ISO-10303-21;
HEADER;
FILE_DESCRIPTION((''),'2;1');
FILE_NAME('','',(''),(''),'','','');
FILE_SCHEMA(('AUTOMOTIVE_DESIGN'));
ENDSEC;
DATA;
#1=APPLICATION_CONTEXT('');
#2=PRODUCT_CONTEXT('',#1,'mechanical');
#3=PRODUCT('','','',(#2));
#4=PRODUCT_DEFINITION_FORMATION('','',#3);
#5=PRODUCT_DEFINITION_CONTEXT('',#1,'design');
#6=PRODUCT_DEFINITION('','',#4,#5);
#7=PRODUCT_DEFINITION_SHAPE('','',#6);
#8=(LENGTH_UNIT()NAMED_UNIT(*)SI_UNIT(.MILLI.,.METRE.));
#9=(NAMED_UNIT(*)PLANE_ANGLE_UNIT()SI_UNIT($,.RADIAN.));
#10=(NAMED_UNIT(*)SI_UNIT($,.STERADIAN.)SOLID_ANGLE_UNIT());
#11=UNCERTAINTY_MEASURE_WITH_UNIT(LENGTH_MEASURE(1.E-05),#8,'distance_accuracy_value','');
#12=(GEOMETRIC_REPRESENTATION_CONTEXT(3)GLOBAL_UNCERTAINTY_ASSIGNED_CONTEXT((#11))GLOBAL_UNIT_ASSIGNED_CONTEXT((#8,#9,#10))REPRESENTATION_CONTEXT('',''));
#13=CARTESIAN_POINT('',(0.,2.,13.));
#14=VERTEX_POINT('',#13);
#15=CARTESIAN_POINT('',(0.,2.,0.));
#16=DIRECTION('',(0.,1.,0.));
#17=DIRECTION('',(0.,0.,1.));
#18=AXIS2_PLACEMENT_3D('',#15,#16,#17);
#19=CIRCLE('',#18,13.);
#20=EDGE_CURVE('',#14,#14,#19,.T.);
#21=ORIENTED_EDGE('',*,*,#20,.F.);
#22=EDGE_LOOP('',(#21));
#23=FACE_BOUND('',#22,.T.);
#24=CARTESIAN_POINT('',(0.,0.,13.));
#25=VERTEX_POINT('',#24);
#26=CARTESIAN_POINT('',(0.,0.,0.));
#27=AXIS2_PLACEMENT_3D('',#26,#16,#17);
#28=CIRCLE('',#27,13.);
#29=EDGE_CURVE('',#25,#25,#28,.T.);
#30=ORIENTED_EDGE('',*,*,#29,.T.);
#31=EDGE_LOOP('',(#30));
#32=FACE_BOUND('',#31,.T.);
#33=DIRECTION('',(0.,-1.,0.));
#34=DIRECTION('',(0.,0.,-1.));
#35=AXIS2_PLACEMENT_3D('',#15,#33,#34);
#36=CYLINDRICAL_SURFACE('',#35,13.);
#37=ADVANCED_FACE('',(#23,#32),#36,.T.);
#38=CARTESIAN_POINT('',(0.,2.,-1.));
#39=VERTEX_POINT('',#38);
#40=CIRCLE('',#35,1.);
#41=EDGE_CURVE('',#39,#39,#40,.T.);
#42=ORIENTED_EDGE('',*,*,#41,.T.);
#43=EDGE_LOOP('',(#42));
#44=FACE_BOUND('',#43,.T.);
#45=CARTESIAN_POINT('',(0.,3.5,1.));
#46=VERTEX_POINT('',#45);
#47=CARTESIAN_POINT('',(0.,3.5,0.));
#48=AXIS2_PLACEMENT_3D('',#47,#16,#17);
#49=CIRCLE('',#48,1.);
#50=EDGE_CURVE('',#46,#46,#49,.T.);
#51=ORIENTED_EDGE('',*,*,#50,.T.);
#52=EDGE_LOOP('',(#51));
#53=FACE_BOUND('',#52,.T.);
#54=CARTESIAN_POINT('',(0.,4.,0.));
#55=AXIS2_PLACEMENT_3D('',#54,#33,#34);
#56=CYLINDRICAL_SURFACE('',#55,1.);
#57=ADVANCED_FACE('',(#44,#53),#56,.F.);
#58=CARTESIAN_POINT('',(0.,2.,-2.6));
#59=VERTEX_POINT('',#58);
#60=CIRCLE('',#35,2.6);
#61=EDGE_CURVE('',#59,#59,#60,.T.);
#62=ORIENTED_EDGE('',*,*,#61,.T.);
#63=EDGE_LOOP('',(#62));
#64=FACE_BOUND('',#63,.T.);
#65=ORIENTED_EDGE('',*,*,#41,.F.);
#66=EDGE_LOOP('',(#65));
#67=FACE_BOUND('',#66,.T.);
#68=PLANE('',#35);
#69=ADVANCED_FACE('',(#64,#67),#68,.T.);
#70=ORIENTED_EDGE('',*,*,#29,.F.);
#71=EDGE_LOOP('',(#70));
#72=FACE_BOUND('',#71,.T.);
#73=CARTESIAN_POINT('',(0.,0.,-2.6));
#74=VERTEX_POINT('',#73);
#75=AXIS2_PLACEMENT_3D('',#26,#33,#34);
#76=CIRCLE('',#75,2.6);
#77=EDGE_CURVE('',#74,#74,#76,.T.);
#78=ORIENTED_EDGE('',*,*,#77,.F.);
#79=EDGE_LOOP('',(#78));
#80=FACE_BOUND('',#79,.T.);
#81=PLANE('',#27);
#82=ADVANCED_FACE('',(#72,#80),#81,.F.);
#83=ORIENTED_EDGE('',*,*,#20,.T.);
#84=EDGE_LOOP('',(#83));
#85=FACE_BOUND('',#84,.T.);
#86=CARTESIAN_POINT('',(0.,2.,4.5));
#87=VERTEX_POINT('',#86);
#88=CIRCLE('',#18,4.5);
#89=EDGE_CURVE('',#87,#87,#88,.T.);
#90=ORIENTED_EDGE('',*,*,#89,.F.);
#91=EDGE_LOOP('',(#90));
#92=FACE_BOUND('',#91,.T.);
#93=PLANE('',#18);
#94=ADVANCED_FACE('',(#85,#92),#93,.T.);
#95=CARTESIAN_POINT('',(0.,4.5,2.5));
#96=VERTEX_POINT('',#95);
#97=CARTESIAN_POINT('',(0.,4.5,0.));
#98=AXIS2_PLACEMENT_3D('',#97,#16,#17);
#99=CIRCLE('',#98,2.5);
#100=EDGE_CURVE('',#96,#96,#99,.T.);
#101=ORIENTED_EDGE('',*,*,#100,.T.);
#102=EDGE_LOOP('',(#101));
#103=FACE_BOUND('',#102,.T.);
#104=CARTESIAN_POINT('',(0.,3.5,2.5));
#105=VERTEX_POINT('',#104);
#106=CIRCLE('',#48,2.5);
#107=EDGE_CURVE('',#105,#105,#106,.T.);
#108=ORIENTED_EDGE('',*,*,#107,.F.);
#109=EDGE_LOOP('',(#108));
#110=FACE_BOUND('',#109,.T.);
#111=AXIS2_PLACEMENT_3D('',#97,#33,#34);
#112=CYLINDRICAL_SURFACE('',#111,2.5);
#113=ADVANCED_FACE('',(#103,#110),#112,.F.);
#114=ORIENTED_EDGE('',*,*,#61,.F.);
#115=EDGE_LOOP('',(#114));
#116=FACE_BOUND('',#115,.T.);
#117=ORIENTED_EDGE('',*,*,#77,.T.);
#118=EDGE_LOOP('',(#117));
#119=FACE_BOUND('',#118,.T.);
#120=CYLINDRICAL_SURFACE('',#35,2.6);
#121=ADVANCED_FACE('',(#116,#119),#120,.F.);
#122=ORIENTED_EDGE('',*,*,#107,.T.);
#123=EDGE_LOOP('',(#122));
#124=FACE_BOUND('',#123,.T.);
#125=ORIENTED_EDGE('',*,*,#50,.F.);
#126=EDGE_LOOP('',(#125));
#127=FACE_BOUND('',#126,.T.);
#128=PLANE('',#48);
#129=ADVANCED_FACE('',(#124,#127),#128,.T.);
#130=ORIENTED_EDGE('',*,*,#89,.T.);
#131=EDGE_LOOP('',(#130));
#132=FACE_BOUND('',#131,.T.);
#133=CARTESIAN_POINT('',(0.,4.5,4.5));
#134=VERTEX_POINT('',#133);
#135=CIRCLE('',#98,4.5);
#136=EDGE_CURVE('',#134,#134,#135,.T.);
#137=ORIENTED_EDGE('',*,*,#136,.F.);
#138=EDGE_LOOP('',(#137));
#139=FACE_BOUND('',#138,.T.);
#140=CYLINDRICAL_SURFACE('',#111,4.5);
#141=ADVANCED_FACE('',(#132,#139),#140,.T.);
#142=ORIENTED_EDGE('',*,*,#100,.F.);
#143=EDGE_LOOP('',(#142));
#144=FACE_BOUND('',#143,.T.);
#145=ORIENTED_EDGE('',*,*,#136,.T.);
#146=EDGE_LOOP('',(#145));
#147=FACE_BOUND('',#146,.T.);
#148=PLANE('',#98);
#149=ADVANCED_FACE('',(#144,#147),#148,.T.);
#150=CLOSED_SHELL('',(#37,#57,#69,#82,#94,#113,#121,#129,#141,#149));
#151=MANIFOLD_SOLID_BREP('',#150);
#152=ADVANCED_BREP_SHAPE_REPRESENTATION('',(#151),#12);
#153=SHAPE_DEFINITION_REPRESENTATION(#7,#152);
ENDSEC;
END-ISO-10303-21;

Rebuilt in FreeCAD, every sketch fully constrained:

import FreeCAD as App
import Part
import Sketcher

V = App.Vector

doc = App.newDocument("Part")
body = doc.addObject("PartDesign::Body", "Body")

sketch1 = body.newObject("Sketcher::SketchObject", "Sketch")
sketch1.AttachmentSupport = (doc.getObject("XZ_Plane"), [""])
sketch1.MapMode = "FlatFace"
sketch1.addGeometry(Part.Circle(V(0, 0, 0), V(0, 0, 1), 13), False)
sketch1.addConstraint([
    Sketcher.Constraint("Coincident", 0, 3, -1, 1),
    Sketcher.Constraint("Diameter", 0, 26.0),
])
pad1 = body.newObject("PartDesign::Pad", "Pad")
pad1.Profile = sketch1
pad1.Length = 2
pad1.Reversed = True

sketch2 = body.newObject("Sketcher::SketchObject", "Sketch001")
sketch2.AttachmentSupport = (doc.getObject("XZ_Plane"), [""])
sketch2.MapMode = "FlatFace"
sketch2.AttachmentOffset = App.Placement(V(0, 0, -2), App.Rotation())
sketch2.addGeometry([
    Part.Circle(V(0, 0, 0), V(0, 0, 1), 4.5),
    Part.Circle(V(0, 0, 0), V(0, 0, 1), 2.5),
], False)
sketch2.addConstraint([
    Sketcher.Constraint("Coincident", 0, 3, -1, 1),
    Sketcher.Constraint("Coincident", 1, 3, -1, 1),
    Sketcher.Constraint("Diameter", 0, 9.0),
    Sketcher.Constraint("Diameter", 1, 5.0),
])
pad2 = body.newObject("PartDesign::Pad", "Pad001")
pad2.Profile = sketch2
pad2.Length = 2.5
pad2.Reversed = True

sketch3 = body.newObject("Sketcher::SketchObject", "Sketch002")
sketch3.AttachmentSupport = (doc.getObject("XZ_Plane"), [""])
sketch3.MapMode = "FlatFace"
sketch3.AttachmentOffset = App.Placement(V(0, 0, -2), App.Rotation())
sketch3.addGeometry(Part.Circle(V(0, 0, 0), V(0, 0, 1), 2.5), False)
sketch3.addConstraint([
    Sketcher.Constraint("Coincident", 0, 3, -1, 1),
    Sketcher.Constraint("Diameter", 0, 5.0),
])
pad3 = body.newObject("PartDesign::Pad", "Pad002")
pad3.Profile = sketch3
pad3.Length = 1.5
pad3.Reversed = True

sketch4 = body.newObject("Sketcher::SketchObject", "Sketch003")
sketch4.AttachmentSupport = (doc.getObject("XZ_Plane"), [""])
sketch4.MapMode = "FlatFace"
sketch4.addGeometry(Part.Circle(V(0, 0, 0), V(0, 0, 1), 2.6), False)
sketch4.addConstraint([
    Sketcher.Constraint("Coincident", 0, 3, -1, 1),
    Sketcher.Constraint("Diameter", 0, 5.2),
])
pocket1 = body.newObject("PartDesign::Pocket", "Pocket")
pocket1.Profile = sketch4
pocket1.Length = 2

sketch5 = body.newObject("Sketcher::SketchObject", "Sketch004")
sketch5.AttachmentSupport = (doc.getObject("XZ_Plane"), [""])
sketch5.MapMode = "FlatFace"
sketch5.AttachmentOffset = App.Placement(V(0, 0, -2), App.Rotation())
sketch5.addGeometry(Part.Circle(V(0, 0, 0), V(0, 0, 1), 1), False)
sketch5.addConstraint([
    Sketcher.Constraint("Coincident", 0, 3, -1, 1),
    Sketcher.Constraint("Diameter", 0, 2.0),
])
pocket2 = body.newObject("PartDesign::Pocket", "Pocket001")
pocket2.Profile = sketch5
pocket2.Length = 2

doc.recompute()
